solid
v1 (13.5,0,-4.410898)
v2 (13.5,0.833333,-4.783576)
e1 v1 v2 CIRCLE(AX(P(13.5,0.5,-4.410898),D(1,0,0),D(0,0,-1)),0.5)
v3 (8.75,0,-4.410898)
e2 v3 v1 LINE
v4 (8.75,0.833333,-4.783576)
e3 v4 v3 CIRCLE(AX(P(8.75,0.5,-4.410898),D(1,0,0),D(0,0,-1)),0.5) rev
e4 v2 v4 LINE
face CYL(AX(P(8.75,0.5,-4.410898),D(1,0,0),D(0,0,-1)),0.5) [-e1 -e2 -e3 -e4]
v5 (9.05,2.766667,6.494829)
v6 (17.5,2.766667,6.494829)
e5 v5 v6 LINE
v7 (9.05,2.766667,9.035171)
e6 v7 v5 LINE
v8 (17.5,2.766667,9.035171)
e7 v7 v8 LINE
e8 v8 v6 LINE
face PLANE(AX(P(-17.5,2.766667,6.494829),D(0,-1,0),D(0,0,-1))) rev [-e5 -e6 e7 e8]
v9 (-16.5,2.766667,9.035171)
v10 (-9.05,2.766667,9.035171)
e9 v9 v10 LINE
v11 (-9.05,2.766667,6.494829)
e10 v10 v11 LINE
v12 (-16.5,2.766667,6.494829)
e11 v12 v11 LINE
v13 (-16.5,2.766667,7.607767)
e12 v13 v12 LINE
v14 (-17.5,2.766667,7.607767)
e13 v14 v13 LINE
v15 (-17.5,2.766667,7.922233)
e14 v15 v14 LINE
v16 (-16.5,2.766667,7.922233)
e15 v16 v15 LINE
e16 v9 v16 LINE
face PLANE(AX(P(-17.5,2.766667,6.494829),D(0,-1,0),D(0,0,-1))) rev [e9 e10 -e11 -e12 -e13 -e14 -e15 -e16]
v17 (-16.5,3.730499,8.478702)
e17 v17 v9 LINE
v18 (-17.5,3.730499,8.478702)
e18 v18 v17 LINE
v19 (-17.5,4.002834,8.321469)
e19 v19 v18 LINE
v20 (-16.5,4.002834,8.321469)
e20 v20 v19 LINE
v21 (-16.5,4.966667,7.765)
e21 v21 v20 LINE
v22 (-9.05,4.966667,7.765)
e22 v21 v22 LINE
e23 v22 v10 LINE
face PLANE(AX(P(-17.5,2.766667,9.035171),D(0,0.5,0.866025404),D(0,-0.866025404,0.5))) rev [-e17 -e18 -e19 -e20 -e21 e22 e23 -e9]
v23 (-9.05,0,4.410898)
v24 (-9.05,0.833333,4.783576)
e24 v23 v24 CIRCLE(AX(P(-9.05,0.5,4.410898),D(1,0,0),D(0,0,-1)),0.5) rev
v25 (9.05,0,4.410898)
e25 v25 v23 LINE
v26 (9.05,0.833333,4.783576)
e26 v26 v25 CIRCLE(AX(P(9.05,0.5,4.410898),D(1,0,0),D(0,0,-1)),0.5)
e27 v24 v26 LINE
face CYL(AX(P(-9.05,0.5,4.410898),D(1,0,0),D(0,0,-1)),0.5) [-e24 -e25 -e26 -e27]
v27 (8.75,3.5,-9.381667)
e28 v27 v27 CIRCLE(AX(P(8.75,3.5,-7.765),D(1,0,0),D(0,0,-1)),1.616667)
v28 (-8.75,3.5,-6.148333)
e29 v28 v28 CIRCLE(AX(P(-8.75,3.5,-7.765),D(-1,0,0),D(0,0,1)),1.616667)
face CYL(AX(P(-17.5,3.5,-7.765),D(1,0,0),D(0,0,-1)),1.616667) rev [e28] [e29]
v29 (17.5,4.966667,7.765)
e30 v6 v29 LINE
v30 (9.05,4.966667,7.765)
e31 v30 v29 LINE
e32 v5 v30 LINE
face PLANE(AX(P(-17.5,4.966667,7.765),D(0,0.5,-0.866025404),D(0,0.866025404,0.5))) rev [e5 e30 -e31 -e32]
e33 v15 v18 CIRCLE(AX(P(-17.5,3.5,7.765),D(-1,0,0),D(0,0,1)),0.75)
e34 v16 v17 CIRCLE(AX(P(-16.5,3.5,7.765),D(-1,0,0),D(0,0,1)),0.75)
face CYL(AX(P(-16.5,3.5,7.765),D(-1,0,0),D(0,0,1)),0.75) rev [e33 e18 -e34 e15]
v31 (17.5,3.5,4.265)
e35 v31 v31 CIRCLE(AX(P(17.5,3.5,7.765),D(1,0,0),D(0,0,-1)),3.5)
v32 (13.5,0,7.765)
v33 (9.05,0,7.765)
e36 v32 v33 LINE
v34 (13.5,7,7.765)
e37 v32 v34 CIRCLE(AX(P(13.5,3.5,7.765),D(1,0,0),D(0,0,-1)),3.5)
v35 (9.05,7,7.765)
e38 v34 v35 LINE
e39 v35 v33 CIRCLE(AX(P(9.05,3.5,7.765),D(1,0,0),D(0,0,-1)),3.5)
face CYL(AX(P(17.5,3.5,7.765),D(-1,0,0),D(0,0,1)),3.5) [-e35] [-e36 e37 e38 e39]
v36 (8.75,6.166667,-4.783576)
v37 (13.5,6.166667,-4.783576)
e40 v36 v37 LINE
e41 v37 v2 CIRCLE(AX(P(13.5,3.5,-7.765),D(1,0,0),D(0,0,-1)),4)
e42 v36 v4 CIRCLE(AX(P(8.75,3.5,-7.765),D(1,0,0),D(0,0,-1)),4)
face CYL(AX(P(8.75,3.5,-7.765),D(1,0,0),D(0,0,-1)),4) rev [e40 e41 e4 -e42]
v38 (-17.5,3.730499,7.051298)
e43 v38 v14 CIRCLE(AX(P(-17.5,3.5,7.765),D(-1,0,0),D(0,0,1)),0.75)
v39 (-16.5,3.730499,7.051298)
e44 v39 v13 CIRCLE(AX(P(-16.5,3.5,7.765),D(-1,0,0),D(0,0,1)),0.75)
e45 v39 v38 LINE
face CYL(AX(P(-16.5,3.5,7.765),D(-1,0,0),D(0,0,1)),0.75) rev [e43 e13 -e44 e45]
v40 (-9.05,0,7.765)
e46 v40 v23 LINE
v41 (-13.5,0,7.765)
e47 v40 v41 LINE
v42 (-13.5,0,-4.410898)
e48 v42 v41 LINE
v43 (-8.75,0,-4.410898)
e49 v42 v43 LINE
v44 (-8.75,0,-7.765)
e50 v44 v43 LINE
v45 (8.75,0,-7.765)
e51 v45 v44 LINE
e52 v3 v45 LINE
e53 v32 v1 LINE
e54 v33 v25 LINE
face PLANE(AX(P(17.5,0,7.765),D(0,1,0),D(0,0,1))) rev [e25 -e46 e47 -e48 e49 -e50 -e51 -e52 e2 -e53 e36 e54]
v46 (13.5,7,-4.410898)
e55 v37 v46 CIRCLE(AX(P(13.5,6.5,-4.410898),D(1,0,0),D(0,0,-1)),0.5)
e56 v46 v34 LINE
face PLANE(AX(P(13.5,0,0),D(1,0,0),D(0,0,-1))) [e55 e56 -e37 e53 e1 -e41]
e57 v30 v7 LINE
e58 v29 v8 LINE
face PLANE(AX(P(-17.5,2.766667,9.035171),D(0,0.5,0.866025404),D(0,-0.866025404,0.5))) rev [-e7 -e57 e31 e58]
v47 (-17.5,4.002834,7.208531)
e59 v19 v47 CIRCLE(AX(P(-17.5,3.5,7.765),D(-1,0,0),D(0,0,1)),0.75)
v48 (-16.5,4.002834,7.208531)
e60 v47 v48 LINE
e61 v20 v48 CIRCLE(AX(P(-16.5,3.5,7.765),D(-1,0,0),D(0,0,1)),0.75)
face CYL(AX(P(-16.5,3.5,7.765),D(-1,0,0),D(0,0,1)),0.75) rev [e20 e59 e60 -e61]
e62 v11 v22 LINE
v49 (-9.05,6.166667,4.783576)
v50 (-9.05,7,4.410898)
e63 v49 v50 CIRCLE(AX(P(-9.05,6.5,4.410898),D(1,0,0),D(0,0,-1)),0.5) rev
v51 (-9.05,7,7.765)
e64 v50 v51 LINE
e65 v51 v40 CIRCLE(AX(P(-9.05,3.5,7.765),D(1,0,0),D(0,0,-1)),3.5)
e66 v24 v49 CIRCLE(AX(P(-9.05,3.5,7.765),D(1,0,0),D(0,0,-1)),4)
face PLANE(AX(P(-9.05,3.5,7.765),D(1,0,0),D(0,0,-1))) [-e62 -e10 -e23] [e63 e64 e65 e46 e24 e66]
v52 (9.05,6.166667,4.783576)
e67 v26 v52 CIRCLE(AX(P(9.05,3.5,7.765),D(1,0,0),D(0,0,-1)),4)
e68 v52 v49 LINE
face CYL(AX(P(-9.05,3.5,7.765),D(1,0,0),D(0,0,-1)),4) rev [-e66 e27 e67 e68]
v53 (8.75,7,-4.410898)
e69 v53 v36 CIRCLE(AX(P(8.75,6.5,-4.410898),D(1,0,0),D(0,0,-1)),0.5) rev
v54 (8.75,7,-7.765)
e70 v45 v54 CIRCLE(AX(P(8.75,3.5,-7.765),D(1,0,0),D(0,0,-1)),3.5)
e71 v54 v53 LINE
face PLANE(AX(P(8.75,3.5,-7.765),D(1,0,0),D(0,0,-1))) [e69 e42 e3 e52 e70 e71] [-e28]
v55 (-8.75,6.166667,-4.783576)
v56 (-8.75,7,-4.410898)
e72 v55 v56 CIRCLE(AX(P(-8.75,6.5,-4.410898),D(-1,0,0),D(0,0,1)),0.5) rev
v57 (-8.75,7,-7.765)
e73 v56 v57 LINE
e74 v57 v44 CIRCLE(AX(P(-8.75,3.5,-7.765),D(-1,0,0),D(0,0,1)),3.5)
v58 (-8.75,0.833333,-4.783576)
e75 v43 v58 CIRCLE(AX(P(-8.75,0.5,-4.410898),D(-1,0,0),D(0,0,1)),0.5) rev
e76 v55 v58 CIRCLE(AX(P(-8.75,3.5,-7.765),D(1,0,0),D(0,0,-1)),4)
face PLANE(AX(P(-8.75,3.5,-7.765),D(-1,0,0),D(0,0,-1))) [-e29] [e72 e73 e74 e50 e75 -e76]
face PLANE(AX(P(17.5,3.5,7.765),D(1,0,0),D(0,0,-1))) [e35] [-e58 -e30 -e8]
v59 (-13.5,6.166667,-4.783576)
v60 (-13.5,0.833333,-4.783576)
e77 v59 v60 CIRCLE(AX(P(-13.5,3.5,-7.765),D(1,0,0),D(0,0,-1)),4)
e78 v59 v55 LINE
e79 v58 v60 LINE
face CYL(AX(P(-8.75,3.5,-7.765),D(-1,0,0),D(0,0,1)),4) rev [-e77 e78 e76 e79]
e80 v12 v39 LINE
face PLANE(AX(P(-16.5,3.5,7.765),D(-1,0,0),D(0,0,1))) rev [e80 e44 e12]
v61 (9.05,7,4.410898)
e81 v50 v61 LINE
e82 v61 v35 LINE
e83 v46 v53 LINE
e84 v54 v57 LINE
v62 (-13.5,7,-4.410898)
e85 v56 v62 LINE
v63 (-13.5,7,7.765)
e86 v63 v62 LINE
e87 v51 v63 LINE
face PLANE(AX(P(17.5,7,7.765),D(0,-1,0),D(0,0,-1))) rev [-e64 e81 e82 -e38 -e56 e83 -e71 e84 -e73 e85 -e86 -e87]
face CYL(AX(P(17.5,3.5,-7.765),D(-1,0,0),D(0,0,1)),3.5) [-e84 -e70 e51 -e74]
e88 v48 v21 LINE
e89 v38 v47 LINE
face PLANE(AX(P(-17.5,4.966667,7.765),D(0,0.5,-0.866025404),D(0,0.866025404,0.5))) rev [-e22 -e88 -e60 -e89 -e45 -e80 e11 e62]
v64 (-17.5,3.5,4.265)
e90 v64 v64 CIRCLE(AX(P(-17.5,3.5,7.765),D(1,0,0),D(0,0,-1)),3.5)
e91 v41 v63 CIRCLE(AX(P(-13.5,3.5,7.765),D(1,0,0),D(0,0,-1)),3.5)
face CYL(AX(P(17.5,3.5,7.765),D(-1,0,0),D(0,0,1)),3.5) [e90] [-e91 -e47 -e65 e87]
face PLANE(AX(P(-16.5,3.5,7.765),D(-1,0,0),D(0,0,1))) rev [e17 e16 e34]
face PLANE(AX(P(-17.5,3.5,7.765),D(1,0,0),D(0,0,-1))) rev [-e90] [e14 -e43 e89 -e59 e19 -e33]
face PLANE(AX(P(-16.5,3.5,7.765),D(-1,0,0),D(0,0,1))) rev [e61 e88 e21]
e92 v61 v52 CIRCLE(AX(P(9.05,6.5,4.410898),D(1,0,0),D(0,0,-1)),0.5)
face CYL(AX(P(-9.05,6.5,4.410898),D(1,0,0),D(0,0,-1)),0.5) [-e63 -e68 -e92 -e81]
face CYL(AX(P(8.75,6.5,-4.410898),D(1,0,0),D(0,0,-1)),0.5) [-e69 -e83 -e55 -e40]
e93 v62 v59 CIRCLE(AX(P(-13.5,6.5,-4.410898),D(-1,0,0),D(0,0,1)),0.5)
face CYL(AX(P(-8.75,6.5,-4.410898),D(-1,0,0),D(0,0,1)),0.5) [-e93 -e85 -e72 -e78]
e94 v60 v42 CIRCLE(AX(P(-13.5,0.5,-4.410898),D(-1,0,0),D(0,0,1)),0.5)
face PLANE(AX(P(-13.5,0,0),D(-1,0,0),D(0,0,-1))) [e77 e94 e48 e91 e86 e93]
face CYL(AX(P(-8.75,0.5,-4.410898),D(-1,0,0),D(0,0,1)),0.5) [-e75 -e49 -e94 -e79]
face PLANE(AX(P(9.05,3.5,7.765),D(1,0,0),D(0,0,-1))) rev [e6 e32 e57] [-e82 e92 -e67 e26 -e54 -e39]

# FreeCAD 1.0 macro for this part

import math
import FreeCAD as App
import Part
import Sketcher

V = App.Vector
Q = App.Units.Quantity


def edges_at(feature, points):
    """Names of the edges that pass closest to the given points."""
    edges = feature.Shape.Edges
    near = lambda p: min(range(len(edges)), key=lambda i: edges[i].distToShape(Part.Vertex(*p))[0])
    return sorted({f"Edge{near(p) + 1}" for p in points})

doc = App.newDocument("Part")
params = doc.addObject("Spreadsheet::Sheet", "Params")
for row, (alias, value) in enumerate([
    ("sketch1_radius", "3.5 mm"),
    ("sketch1_height", "15.53 mm"),
    ("pad1_length", "35 mm"),
    ("sketch2_diameter", "7 mm"),
    ("sketch2_width", "9 mm"),
    ("sketch2_height", "24 mm"),
    ("pocket1_length", "4 mm"),
    ("sketch3_diameter", "8 mm"),
    ("pocket2_length", "18.1 mm"),
    ("sketch4_diameter", "8 mm"),
    ("pocket3_length", "4.75 mm"),
    ("fillet_radius", "0.5 mm"),
    ("sketch6_diameter", "7 mm"),
    ("sketch6_diameter2", "1.5 mm"),
    ("pad2_length", "1 mm"),
], start=1):
    params.set(f"A{row}", alias)
    params.set(f"B{row}", "=" + value)
    params.setAlias(f"B{row}", alias)

body = doc.addObject("PartDesign::Body", "Body")

# Sketch on YZ plane
sketch1 = doc.addObject("Sketcher::SketchObject", "Sketch")
body.addObject(sketch1)
sketch1.AttachmentSupport = (doc.YZ_Plane, [""])
sketch1.MapMode = "FlatFace"
sketch1.addGeometry([
    Part.LineSegment(V(7, -7.765, 0), V(7, 7.765, 0)),
    Part.ArcOfCircle(Part.Circle(V(3.5, 7.765, 0), V(0, 0, 1), 3.5), math.radians(0), math.radians(180)),
    Part.LineSegment(V(0, 7.765, 0), V(0, -7.765, 0)),
    Part.ArcOfCircle(Part.Circle(V(3.5, -7.765, 0), V(0, 0, 1), 3.5), math.radians(180), math.radians(360)),
], False)
sketch1.addConstraint([
    Sketcher.Constraint("Tangent", 0, 2, 1, 1),
    Sketcher.Constraint("Tangent", 1, 2, 2, 1),
    Sketcher.Constraint("Tangent", 2, 2, 3, 1),
    Sketcher.Constraint("Tangent", 3, 2, 0, 1),
    Sketcher.Constraint("Vertical", 0),
    Sketcher.Constraint("Vertical", 2),
    Sketcher.Constraint("Symmetric", 1, 2, 2, 2, -1, 1),
    Sketcher.Constraint("Radius", 1, 3.5),
    Sketcher.Constraint("DistanceY", 0, 1, 0, 2, 15.53),
])
sketch1.setExpression("Constraints[7]", "Params.sketch1_radius")
sketch1.setExpression("Constraints[8]", "Params.sketch1_height")
pad1 = doc.addObject("PartDesign::Pad", "Pad")
body.addObject(pad1)
pad1.Profile = sketch1
pad1.setExpression("Length", "Params.pad1_length")
pad1.Midplane = True

# Sketch on YZ plane
sketch2 = doc.addObject("Sketcher::SketchObject", "Sketch001")
body.addObject(sketch2)
sketch2.AttachmentSupport = (doc.YZ_Plane, [""])
sketch2.MapMode = "FlatFace"
sketch2.AttachmentOffset = App.Placement(V(0, 0, 17.5), App.Rotation())
sketch2.addGeometry([
    Part.LineSegment(V(8, 12, 0), V(-1, 12, 0)),  # 0
    Part.LineSegment(V(-1, 12, 0), V(-1, -12, 0)),  # 1
    Part.LineSegment(V(-1, -12, 0), V(8, -12, 0)),  # 2
    Part.LineSegment(V(8, -12, 0), V(8, 12, 0)),  # 3
    Part.Circle(V(3.5, 7.765, 0), V(0, 0, 1), 3.5),  # 4
], False)
sketch2.addConstraint([
    Sketcher.Constraint("Coincident", 0, 2, 1, 1),
    Sketcher.Constraint("Coincident", 1, 2, 2, 1),
    Sketcher.Constraint("Coincident", 2, 2, 3, 1),
    Sketcher.Constraint("Coincident", 3, 2, 0, 1),
    Sketcher.Constraint("Horizontal", 0),
    Sketcher.Constraint("Vertical", 1),
    Sketcher.Constraint("Horizontal", 2),
    Sketcher.Constraint("Vertical", 3),
    Sketcher.Constraint("Diameter", 4, 7.0),
    Sketcher.Constraint("DistanceX", 0, 2, 0, 1, 9.0),
    Sketcher.Constraint("DistanceY", 1, 2, 1, 1, 24.0),
    Sketcher.Constraint("DistanceX", 0, 2, -1, 1, 1.0),
    Sketcher.Constraint("DistanceY", -1, 1, 0, 2, 12.0),
    Sketcher.Constraint("DistanceX", -1, 1, 4, 3, 3.5),
    Sketcher.Constraint("DistanceY", -1, 1, 4, 3, 7.765),
])
sketch2.setExpression("Constraints[8]", "Params.sketch2_diameter")
sketch2.setExpression("Constraints[9]", "Params.sketch2_width")
sketch2.setExpression("Constraints[10]", "Params.sketch2_height")
pocket1 = doc.addObject("PartDesign::Pocket", "Pocket")
body.addObject(pocket1)
pocket1.Profile = sketch2
pocket1.setExpression("Length", "Params.pocket1_length")
doc.recompute()

mirrored = doc.addObject("PartDesign::Mirrored", "Mirrored")
body.addObject(mirrored)
mirrored.Originals = [pocket1]
mirrored.MirrorPlane = (doc.YZ_Plane, [""])
body.Tip = mirrored

# Sketch on YZ plane
sketch3 = doc.addObject("Sketcher::SketchObject", "Sketch002")
body.addObject(sketch3)
sketch3.AttachmentSupport = (doc.YZ_Plane, [""])
sketch3.MapMode = "FlatFace"
sketch3.addGeometry(Part.Circle(V(3.5, 7.765, 0), V(0, 0, 1), 4), False)
sketch3.addConstraint([
    Sketcher.Constraint("Diameter", 0, 8.0),
    Sketcher.Constraint("DistanceX", -1, 1, 0, 3, 3.5),
    Sketcher.Constraint("DistanceY", -1, 1, 0, 3, 7.765),
])
sketch3.setExpression("Constraints[0]", "Params.sketch3_diameter")
pocket2 = doc.addObject("PartDesign::Pocket", "Pocket001")
body.addObject(pocket2)
pocket2.Profile = sketch3
pocket2.setExpression("Length", "Params.pocket2_length")
pocket2.Midplane = True

# Sketch on YZ plane
sketch4 = doc.addObject("Sketcher::SketchObject", "Sketch003")
body.addObject(sketch4)
sketch4.AttachmentSupport = (doc.YZ_Plane, [""])
sketch4.MapMode = "FlatFace"
sketch4.AttachmentOffset = App.Placement(V(0, 0, 13.5), App.Rotation())
sketch4.addGeometry(Part.Circle(V(3.5, -7.765, 0), V(0, 0, 1), 4), False)
sketch4.addConstraint([
    Sketcher.Constraint("Diameter", 0, 8.0),
    Sketcher.Constraint("DistanceX", -1, 1, 0, 3, 3.5),
    Sketcher.Constraint("DistanceY", 0, 3, -1, 1, 7.765),
])
sketch4.setExpression("Constraints[0]", "Params.sketch4_diameter")
pocket3 = doc.addObject("PartDesign::Pocket", "Pocket002")
body.addObject(pocket3)
pocket3.Profile = sketch4
pocket3.setExpression("Length", "Params.pocket3_length")
doc.recompute()

mirrored2 = doc.addObject("PartDesign::Mirrored", "Mirrored001")
body.addObject(mirrored2)
mirrored2.Originals = [pocket3]
mirrored2.MirrorPlane = (doc.YZ_Plane, [""])
body.Tip = mirrored2

# Sketch on YZ plane
sketch5 = doc.addObject("Sketcher::SketchObject", "Sketch004")
body.addObject(sketch5)
sketch5.AttachmentSupport = (doc.YZ_Plane, [""])
sketch5.MapMode = "FlatFace"
sketch5.AttachmentOffset = App.Placement(V(0, 0, 17.5), App.Rotation())
sketch5.addGeometry([
    Part.Circle(V(3.5, -7.765, 0), V(0, 0, 1), 1.616667),
    Part.LineSegment(V(4.966667, 7.765, 0), V(2.766667, 9.035171, 0)),
    Part.LineSegment(V(2.766667, 9.035171, 0), V(2.766667, 6.494829, 0)),
    Part.LineSegment(V(2.766667, 6.494829, 0), V(4.966667, 7.765, 0)),
], False)
sketch5.addConstraint([
    Sketcher.Constraint("Coincident", 1, 2, 2, 1),
    Sketcher.Constraint("Coincident", 2, 2, 3, 1),
    Sketcher.Constraint("Coincident", 3, 2, 1, 1),
    Sketcher.Constraint("Vertical", 2),
    Sketcher.Constraint("Equal", 1, 3),
    Sketcher.Constraint("Angle", 1, Q("150 deg")),
    Sketcher.Constraint("DistanceX", -1, 1, 0, 3, 3.5),
    Sketcher.Constraint("DistanceX", 2, 2, 3, 2, 2.2),
    Sketcher.Constraint("DistanceY", 0, 3, 3, 2, 15.53),
    Sketcher.Constraint("Diameter", 0, 3.233333),
    Sketcher.Constraint("DistanceY", 0, 3, -1, 1, 7.765),
    Sketcher.Constraint("DistanceX", -1, 1, 1, 2, 2.766667),
])
pocket4 = doc.addObject("PartDesign::Pocket", "Pocket003")
body.addObject(pocket4)
pocket4.Profile = sketch5
pocket4.Type = "ThroughAll"
doc.recompute()

fillet = doc.addObject("PartDesign::Fillet", "Fillet")
body.addObject(fillet)
fillet.Base = (pocket4, edges_at(pocket4, [
    (0, 7, 5.829),
    (0, 0, 5.829),
    (11.125, 0, -5.829),
    (11.125, 7, -5.829),
    (-11.125, 0, -5.829),
    (-11.125, 7, -5.829),
]))
fillet.setExpression("Radius", "Params.fillet_radius")

# Sketch on YZ plane
sketch6 = doc.addObject("Sketcher::SketchObject", "Sketch005")
body.addObject(sketch6)
sketch6.AttachmentSupport = (doc.YZ_Plane, [""])
sketch6.MapMode = "FlatFace"
sketch6.AttachmentOffset = App.Placement(V(0, 0, -16.5), App.Rotation())
sketch6.addGeometry([
    Part.Circle(V(3.5, 7.765, 0), V(0, 0, 1), 3.5),
    Part.Circle(V(3.5, 7.765, 0), V(0, 0, 1), 0.75),
], False)
sketch6.addConstraint([
    Sketcher.Constraint("Coincident", 1, 3, 0, 3),
    Sketcher.Constraint("Diameter", 0, 7.0),
    Sketcher.Constraint("Diameter", 1, 1.5),
    Sketcher.Constraint("DistanceX", -1, 1, 0, 3, 3.5),
    Sketcher.Constraint("DistanceY", -1, 1, 0, 3, 7.765),
])
sketch6.setExpression("Constraints[1]", "Params.sketch6_diameter")
sketch6.setExpression("Constraints[2]", "Params.sketch6_diameter2")
pad2 = doc.addObject("PartDesign::Pad", "Pad001")
body.addObject(pad2)
pad2.Profile = sketch6
pad2.setExpression("Length", "Params.pad2_length")
pad2.Reversed = True

doc.recompute()
